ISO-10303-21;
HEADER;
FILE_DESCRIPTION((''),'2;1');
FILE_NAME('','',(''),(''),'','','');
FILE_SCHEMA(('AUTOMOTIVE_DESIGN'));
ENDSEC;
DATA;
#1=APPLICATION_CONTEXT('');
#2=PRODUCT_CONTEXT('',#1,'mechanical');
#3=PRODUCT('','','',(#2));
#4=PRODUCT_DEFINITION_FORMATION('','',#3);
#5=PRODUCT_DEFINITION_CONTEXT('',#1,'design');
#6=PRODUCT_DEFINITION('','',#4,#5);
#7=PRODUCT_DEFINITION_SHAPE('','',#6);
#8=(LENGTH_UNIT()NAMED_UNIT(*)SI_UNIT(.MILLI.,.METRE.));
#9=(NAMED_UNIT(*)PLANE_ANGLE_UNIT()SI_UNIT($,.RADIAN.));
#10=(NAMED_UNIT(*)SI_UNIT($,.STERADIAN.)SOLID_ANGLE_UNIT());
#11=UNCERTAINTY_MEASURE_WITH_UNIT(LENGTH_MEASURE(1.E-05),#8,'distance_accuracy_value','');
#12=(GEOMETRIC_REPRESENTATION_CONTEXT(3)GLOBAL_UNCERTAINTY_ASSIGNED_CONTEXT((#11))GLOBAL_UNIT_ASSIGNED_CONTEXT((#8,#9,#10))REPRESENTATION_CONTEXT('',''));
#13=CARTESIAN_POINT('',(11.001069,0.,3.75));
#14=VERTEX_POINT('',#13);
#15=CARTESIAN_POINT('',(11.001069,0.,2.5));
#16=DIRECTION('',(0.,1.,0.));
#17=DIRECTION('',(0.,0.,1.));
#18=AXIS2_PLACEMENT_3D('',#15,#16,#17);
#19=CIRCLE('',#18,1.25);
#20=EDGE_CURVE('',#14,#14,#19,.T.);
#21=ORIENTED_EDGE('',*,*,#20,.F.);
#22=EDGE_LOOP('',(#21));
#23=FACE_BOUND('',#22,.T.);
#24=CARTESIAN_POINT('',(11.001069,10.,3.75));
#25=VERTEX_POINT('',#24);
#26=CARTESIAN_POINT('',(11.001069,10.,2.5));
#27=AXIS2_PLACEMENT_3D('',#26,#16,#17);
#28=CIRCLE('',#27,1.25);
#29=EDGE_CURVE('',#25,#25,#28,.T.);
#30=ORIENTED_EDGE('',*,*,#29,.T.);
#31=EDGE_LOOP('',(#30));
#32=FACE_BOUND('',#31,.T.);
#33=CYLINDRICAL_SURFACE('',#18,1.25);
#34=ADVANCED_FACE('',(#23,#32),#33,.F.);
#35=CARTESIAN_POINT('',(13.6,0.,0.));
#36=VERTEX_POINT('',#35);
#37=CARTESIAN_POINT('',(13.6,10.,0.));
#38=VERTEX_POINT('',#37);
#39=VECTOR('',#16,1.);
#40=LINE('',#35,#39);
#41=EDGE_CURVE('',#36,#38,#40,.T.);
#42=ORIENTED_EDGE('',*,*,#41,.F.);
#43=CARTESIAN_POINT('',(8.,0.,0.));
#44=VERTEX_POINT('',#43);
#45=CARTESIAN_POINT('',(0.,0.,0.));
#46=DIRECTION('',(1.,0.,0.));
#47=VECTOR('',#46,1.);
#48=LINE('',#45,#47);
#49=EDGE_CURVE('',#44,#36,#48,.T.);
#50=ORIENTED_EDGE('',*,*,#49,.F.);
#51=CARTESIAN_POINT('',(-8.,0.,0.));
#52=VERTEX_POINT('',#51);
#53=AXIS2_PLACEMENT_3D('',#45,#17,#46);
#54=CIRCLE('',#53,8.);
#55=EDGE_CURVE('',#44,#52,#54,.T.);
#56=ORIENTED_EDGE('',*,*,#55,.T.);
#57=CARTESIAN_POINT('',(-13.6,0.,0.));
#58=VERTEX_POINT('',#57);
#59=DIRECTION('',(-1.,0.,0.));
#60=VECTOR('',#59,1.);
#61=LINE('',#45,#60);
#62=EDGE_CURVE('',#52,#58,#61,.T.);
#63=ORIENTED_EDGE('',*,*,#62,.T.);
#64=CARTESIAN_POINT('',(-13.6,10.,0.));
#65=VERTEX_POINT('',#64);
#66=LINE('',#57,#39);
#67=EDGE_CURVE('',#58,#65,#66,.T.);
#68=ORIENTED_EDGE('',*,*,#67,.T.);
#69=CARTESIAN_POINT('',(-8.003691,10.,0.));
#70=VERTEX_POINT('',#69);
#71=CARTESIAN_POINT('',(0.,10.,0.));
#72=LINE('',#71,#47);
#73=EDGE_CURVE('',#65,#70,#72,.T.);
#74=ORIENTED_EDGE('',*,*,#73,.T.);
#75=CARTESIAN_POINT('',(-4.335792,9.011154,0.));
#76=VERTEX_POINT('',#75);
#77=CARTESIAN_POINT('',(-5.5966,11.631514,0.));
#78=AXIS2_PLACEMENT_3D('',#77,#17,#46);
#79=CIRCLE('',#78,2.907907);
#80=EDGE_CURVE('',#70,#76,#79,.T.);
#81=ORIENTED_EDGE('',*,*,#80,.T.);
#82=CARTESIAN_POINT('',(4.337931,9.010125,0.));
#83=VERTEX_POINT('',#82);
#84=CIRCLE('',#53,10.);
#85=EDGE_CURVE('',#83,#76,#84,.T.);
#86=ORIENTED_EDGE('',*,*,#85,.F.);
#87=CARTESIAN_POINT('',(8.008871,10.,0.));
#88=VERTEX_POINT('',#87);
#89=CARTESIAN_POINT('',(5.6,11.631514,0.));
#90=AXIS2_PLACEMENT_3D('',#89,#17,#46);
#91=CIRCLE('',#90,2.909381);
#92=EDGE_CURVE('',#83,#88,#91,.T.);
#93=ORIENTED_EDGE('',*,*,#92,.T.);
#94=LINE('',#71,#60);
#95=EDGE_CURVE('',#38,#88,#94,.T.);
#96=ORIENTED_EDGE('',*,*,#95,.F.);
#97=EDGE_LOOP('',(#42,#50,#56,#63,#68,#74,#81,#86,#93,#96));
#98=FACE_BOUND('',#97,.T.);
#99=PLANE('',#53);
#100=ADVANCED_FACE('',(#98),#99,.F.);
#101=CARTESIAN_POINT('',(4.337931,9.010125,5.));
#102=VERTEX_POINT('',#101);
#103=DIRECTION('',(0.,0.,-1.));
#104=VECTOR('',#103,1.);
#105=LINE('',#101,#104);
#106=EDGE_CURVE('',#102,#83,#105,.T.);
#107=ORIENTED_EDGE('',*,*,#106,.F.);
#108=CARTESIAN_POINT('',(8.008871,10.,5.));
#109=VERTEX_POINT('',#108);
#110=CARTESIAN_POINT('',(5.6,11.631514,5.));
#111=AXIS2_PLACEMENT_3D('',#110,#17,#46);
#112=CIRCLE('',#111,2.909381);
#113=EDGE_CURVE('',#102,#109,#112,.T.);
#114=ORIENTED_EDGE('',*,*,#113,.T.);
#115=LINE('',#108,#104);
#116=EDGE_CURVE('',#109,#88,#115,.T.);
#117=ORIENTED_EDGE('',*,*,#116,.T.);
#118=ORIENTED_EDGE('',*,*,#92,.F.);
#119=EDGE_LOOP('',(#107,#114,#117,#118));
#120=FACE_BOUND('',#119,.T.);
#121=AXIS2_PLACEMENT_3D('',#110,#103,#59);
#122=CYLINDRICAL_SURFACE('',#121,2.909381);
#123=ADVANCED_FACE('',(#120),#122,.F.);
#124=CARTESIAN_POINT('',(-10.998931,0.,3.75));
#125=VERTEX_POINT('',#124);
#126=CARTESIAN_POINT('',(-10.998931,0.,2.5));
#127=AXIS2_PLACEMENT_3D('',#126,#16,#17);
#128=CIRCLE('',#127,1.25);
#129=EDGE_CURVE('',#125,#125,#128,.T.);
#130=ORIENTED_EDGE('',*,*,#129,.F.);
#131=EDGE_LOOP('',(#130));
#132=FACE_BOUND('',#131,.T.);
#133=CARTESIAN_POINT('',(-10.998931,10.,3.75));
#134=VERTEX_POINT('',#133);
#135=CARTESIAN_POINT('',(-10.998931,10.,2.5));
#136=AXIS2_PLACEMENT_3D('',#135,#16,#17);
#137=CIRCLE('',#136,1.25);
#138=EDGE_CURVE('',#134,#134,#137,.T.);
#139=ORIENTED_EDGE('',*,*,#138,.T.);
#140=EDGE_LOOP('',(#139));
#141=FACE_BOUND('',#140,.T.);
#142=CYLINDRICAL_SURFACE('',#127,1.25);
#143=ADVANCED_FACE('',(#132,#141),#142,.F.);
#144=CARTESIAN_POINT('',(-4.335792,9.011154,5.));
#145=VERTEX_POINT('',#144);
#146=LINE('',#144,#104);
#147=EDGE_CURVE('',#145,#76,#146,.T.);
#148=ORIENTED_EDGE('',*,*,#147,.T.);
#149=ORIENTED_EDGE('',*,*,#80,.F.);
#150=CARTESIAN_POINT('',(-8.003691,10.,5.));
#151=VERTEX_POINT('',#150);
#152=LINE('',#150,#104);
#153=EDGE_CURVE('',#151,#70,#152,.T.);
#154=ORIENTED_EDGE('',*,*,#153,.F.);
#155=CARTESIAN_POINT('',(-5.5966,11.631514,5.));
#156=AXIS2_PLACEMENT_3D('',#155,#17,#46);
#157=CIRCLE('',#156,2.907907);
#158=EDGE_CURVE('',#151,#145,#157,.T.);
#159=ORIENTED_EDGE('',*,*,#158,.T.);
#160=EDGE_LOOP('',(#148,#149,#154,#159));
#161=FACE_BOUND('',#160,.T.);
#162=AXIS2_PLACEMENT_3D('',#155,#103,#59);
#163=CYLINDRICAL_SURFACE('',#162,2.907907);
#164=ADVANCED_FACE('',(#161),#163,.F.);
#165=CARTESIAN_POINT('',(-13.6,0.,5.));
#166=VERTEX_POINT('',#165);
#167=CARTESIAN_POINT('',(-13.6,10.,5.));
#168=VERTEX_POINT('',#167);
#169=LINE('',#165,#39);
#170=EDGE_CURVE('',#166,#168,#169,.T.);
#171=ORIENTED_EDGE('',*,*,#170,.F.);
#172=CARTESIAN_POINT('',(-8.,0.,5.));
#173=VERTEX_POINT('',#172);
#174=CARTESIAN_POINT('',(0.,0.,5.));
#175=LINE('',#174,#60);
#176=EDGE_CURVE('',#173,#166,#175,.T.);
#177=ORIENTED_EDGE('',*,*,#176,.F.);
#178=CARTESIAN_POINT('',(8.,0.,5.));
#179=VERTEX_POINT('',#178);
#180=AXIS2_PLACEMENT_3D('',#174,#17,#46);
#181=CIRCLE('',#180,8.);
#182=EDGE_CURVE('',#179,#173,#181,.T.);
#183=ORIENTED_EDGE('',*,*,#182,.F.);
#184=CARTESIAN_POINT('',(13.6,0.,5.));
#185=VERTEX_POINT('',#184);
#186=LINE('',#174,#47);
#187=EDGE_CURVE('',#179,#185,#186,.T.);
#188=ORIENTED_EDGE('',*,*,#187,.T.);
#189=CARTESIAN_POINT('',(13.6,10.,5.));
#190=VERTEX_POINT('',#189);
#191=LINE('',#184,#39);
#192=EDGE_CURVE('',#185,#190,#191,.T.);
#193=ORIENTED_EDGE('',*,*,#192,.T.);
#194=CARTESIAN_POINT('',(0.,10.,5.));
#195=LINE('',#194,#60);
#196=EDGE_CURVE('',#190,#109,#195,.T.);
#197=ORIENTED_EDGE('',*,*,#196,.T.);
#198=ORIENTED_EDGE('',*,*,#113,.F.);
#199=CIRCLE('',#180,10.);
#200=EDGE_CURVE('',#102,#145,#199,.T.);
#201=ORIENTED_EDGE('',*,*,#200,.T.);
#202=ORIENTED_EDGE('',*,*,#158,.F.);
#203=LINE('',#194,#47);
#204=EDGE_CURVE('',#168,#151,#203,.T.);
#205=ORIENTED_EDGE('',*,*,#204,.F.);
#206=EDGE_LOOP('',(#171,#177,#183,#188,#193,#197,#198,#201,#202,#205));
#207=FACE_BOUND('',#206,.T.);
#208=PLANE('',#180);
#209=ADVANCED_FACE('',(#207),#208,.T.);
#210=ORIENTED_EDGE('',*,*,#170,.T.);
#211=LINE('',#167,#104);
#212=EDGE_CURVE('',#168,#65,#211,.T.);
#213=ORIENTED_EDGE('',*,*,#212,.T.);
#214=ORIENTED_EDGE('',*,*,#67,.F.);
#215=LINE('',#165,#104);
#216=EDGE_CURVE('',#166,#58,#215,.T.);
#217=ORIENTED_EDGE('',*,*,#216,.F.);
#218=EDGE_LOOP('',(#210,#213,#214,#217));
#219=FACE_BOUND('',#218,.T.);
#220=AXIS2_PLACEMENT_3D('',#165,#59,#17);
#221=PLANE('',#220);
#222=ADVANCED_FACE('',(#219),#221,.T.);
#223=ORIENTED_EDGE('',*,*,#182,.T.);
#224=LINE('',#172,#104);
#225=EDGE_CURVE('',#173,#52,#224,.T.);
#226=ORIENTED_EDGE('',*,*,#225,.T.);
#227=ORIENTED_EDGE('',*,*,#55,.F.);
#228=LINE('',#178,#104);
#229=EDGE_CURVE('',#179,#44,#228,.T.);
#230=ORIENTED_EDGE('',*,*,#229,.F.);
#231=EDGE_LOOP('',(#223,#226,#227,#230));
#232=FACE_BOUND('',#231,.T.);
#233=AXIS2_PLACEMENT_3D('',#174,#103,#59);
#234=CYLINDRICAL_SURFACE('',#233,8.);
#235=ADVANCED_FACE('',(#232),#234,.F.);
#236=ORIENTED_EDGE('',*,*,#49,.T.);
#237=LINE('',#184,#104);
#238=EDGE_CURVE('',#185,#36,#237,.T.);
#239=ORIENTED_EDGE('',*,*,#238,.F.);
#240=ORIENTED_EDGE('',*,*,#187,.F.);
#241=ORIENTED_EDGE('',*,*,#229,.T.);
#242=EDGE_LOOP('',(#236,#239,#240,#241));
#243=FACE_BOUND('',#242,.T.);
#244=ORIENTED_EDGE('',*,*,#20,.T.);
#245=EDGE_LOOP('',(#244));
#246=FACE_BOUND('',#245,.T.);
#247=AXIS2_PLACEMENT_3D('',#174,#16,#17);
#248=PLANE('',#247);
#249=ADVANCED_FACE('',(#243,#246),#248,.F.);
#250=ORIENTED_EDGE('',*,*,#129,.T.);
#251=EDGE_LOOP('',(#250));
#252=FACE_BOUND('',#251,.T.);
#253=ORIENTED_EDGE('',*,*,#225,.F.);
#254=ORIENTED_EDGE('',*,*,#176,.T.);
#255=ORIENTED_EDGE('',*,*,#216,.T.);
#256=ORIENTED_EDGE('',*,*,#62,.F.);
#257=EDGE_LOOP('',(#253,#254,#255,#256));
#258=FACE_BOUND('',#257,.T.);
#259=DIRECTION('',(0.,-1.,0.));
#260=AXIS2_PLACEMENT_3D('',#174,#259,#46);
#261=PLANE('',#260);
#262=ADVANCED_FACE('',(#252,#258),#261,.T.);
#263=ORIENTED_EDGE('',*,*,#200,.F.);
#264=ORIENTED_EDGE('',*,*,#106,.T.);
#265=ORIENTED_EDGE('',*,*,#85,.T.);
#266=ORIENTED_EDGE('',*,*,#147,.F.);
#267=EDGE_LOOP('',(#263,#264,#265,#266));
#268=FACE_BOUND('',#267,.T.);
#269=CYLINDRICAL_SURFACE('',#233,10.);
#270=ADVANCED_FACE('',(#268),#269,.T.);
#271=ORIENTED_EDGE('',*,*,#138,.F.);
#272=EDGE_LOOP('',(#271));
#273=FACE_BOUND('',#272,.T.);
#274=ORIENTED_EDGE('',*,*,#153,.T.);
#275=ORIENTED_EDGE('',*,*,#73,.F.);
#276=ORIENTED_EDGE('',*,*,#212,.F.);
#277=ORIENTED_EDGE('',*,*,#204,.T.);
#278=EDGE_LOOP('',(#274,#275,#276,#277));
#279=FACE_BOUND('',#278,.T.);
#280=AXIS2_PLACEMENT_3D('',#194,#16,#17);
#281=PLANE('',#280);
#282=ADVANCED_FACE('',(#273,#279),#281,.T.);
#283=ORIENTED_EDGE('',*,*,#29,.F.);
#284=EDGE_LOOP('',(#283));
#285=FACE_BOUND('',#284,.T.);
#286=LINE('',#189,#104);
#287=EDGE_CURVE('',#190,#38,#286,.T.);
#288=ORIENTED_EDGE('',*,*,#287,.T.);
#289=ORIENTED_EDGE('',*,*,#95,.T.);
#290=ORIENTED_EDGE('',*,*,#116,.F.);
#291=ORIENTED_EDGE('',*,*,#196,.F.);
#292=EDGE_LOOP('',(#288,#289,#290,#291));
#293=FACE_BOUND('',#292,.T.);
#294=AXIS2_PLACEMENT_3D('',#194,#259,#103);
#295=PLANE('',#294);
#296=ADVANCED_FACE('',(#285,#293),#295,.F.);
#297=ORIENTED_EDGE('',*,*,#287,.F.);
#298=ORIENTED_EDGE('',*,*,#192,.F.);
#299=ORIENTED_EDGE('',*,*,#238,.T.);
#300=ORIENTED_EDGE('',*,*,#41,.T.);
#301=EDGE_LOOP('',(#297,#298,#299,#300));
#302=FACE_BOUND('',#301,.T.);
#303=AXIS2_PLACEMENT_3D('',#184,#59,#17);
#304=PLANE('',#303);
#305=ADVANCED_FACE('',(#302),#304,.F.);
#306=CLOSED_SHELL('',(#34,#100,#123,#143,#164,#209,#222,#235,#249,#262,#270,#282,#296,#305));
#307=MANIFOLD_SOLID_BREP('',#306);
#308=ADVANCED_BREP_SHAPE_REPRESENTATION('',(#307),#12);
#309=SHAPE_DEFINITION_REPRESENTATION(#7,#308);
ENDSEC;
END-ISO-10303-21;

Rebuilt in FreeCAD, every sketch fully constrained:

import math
import FreeCAD as App
import Part
import Sketcher
from FreeCAD import Vector
Q = App.Units.Quantity

doc = App.newDocument("Part")
body = doc.addObject("PartDesign::Body", "Body")

# Sketch on XY plane
sketch1 = body.newObject("Sketcher::SketchObject", "Sketch")
sketch1.AttachmentSupport = (doc.getObject("XY_Plane"), [""])
sketch1.MapMode = "FlatFace"
sketch1.addGeometry([
    Part.ArcOfCircle(Part.Circle(Vector(0, 0, 0), Vector(0, 0, 1), 8), math.radians(0), math.radians(180)),  # 0
    Part.LineSegment(Vector(8, 0, 0), Vector(13.6, 0, 0)),  # 1
    Part.LineSegment(Vector(13.6, 0, 0), Vector(13.6, 10, 0)),  # 2
    Part.LineSegment(Vector(13.6, 10, 0), Vector(8.008871, 10, 0)),  # 3
    Part.ArcOfCircle(Part.Circle(Vector(5.6, 11.631514, 0), Vector(0, 0, 1), 2.909381), math.radians(-115.70852), math.radians(-34.109555)),  # 4
    Part.ArcOfCircle(Part.Circle(Vector(0, 0, 0), Vector(0, 0, 1), 10), math.radians(64.291481), math.radians(115.694923)),  # 5
    Part.ArcOfCircle(Part.Circle(Vector(-5.5966, 11.631514, 0), Vector(0, 0, 1), 2.907907), math.radians(-145.870767), math.radians(-64.305077)),  # 6
    Part.LineSegment(Vector(-8.003691, 10, 0), Vector(-13.6, 10, 0)),  # 7
    Part.LineSegment(Vector(-13.6, 10, 0), Vector(-13.6, 0, 0)),  # 8
    Part.LineSegment(Vector(-13.6, 0, 0), Vector(-8, 0, 0)),  # 9
], False)
sketch1.addConstraint([
    Sketcher.Constraint("Coincident", 0, 1, 1, 1),
    Sketcher.Constraint("Coincident", 1, 2, 2, 1),
    Sketcher.Constraint("Coincident", 2, 2, 3, 1),
    Sketcher.Constraint("Coincident", 3, 2, 4, 2),
    Sketcher.Constraint("Tangent", 4, 1, 5, 1),
    Sketcher.Constraint("Tangent", 5, 2, 6, 2),
    Sketcher.Constraint("Coincident", 6, 1, 7, 1),
    Sketcher.Constraint("Coincident", 7, 2, 8, 1),
    Sketcher.Constraint("Coincident", 8, 2, 9, 1),
    Sketcher.Constraint("Coincident", 9, 2, 0, 2),
    Sketcher.Constraint("Horizontal", 1),
    Sketcher.Constraint("Vertical", 2),
    Sketcher.Constraint("Horizontal", 3),
    Sketcher.Constraint("Horizontal", 7),
    Sketcher.Constraint("Vertical", 8),
    Sketcher.Constraint("Horizontal", 9),
    Sketcher.Constraint("Coincident", 0, 3, -1, 1),
    Sketcher.Constraint("Coincident", 5, 3, -1, 1),
    Sketcher.Constraint("Symmetric", 1, 2, 8, 2, -1, 1),
    Sketcher.Constraint("PointOnObject", 0, 1, -1),
    Sketcher.Constraint("Horizontal", 4, 3, 6, 3),
    Sketcher.Constraint("Horizontal", 3, 2, 6, 1),
    Sketcher.Constraint("Radius", 0, Q("8 mm")),
    Sketcher.Constraint("Radius", 5, Q("10 mm")),
    Sketcher.Constraint("DistanceY", 2, 1, 2, 2, Q("10 mm")),
    Sketcher.Constraint("DistanceX", 1, 1, 1, 2, Q("5.6 mm")),
    Sketcher.Constraint("DistanceX", 4, 3, 1, 2, Q("8 mm")),
    Sketcher.Constraint("Radius", 4, Q("2.909381 mm")),
    Sketcher.Constraint("Radius", 6, Q("2.907907 mm")),
])
pad1 = body.newObject("PartDesign::Pad", "Pad")
pad1.Profile = sketch1
pad1.Length = 5

# Sketch on XZ plane
sketch2 = body.newObject("Sketcher::SketchObject", "Sketch001")
sketch2.AttachmentSupport = (doc.getObject("XZ_Plane"), [""])
sketch2.MapMode = "FlatFace"
sketch2.AttachmentOffset = App.Placement(Vector(0, 0, -10), App.Rotation())
sketch2.addGeometry([
    Part.Circle(Vector(-10.998931, 2.5, 0), Vector(0, 0, 1), 1.25),
    Part.Circle(Vector(11.001069, 2.5, 0), Vector(0, 0, 1), 1.25),
], False)
sketch2.addConstraint([
    Sketcher.Constraint("Equal", 0, 1),
    Sketcher.Constraint("Horizontal", 0, 3, 1, 3),
    Sketcher.Constraint("Diameter", 0, Q("2.5 mm")),
    Sketcher.Constraint("DistanceX", 0, 3, 1, 3, Q("22 mm")),
    Sketcher.Constraint("DistanceY", -1, 1, 0, 3, Q("2.5 mm")),
    Sketcher.Constraint("DistanceX", 0, 3, -1, 1, Q("10.998931 mm")),
])
pocket1 = body.newObject("PartDesign::Pocket", "Pocket")
pocket1.Profile = sketch2
pocket1.Length = 10
pocket1.Reversed = True

doc.recompute()
